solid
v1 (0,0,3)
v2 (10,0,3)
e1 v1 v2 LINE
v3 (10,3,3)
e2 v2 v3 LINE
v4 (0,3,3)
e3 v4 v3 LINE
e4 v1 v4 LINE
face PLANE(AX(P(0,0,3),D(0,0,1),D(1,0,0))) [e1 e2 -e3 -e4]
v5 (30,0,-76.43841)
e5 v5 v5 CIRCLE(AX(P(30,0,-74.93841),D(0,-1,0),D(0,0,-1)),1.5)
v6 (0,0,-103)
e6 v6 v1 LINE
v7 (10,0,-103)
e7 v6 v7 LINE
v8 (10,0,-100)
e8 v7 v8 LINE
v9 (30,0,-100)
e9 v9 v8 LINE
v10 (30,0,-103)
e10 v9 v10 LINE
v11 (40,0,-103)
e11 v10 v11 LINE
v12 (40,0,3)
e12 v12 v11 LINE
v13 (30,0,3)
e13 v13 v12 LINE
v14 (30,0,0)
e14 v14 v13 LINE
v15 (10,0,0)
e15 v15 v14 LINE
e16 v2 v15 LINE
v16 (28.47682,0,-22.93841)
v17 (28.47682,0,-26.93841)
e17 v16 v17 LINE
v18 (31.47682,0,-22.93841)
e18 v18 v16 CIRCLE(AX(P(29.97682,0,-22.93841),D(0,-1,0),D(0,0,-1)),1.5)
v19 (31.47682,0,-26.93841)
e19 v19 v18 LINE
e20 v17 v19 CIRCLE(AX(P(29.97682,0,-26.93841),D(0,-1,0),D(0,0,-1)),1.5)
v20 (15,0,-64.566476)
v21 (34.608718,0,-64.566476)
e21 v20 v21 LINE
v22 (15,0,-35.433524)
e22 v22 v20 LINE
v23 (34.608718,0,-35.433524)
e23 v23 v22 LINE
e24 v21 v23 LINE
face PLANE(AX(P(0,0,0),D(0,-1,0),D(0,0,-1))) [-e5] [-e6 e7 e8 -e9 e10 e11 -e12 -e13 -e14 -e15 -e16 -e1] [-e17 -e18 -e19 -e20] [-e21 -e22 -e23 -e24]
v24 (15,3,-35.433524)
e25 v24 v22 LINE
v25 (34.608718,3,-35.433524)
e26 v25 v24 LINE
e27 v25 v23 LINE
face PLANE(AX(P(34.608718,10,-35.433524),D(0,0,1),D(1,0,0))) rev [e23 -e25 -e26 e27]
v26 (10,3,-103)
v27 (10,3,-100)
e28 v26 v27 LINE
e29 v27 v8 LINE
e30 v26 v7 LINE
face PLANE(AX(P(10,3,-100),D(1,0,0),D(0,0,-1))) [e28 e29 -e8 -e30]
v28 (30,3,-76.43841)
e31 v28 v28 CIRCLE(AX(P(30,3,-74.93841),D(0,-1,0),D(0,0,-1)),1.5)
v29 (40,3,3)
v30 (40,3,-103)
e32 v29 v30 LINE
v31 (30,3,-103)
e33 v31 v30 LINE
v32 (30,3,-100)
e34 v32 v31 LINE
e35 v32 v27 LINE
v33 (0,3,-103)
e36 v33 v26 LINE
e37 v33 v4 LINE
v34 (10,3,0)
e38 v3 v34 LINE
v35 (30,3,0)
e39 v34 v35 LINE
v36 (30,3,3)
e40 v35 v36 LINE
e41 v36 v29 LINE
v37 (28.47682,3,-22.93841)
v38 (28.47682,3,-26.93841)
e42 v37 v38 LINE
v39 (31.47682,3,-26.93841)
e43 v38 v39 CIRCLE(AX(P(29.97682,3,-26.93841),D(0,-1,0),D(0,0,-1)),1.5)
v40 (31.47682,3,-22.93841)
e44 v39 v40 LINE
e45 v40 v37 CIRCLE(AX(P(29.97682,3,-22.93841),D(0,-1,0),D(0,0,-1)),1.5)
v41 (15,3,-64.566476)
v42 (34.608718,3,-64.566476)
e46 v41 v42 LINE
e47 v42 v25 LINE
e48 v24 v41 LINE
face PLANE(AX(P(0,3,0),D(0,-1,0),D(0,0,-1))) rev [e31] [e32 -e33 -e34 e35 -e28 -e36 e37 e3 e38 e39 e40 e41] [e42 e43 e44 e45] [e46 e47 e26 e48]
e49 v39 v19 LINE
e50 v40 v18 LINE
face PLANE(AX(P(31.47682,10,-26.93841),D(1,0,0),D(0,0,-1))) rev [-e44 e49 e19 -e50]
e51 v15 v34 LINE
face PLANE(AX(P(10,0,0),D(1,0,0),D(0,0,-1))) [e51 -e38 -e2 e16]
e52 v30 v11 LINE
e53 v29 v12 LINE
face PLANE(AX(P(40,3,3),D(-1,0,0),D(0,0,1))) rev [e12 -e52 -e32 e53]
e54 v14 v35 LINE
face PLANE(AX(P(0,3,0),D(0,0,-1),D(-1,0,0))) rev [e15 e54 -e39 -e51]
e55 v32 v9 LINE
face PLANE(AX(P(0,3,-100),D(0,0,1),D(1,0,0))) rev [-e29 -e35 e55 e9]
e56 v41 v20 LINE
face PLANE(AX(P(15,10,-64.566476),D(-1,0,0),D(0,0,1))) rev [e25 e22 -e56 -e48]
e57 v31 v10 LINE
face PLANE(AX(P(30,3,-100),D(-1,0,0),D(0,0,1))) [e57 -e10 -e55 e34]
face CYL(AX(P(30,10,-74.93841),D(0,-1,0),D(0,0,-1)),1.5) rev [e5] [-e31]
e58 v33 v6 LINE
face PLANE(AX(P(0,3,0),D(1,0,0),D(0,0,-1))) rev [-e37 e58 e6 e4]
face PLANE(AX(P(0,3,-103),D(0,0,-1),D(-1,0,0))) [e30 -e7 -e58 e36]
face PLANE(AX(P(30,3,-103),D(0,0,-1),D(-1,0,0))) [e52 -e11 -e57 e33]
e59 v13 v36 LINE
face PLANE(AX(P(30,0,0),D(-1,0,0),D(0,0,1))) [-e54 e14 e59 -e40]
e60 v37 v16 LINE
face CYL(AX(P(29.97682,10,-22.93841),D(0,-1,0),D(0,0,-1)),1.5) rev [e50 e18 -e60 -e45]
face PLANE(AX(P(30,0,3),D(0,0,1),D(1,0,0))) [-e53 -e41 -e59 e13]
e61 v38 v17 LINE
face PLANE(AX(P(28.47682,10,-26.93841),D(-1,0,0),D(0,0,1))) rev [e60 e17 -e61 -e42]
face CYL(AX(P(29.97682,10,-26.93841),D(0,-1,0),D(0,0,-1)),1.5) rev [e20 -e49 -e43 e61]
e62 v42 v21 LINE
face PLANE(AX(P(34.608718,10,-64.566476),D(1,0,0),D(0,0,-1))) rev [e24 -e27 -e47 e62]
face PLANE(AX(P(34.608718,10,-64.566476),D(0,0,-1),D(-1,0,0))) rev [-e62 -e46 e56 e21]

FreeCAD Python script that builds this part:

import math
import FreeCAD as App
import Part
import Sketcher

doc = App.newDocument("Part")
body = doc.addObject("PartDesign::Body", "Body")

sketch1 = body.newObject("Sketcher::SketchObject", "Sketch")
sketch1.AttachmentSupport = (doc.getObject("XZ_Plane"), [""])
sketch1.MapMode = "FlatFace"
sketch1.addGeometry(Part.LineSegment(App.Vector(0, -100, 0), App.Vector(0, 0, 0)), False)
sketch1.addGeometry(Part.LineSegment(App.Vector(0, 0, 0), App.Vector(120, 0, 0)), False)
sketch1.addGeometry(Part.LineSegment(App.Vector(120, 0, 0), App.Vector(120, -100, 0)), False)
sketch1.addGeometry(Part.LineSegment(App.Vector(120, -100, 0), App.Vector(0, -100, 0)), False)
sketch1.addConstraint(Sketcher.Constraint("Coincident", 0, 2, 1, 1))
sketch1.addConstraint(Sketcher.Constraint("Coincident", 1, 2, 2, 1))
sketch1.addConstraint(Sketcher.Constraint("Coincident", 2, 2, 3, 1))
sketch1.addConstraint(Sketcher.Constraint("Coincident", 3, 2, 0, 1))
sketch1.addConstraint(Sketcher.Constraint("Vertical", 0))
sketch1.addConstraint(Sketcher.Constraint("Horizontal", 1))
sketch1.addConstraint(Sketcher.Constraint("Vertical", 2))
sketch1.addConstraint(Sketcher.Constraint("Horizontal", 3))
sketch1.addConstraint(Sketcher.Constraint("Coincident", 0, 2, -1, 1))
sketch1.addConstraint(Sketcher.Constraint("DistanceX", 1, 1, 1, 2, 120.0))
sketch1.addConstraint(Sketcher.Constraint("DistanceY", 0, 1, 0, 2, 100.0))
pad1 = body.newObject("PartDesign::Pad", "Pad")
pad1.Profile = sketch1
pad1.Length = 3
pad1.Reversed = True

sketch2 = body.newObject("Sketcher::SketchObject", "Sketch001")
sketch2.AttachmentSupport = (doc.getObject("XZ_Plane"), [""])
sketch2.MapMode = "FlatFace"
sketch2.AttachmentOffset = App.Placement(App.Vector(0, 0, -3), App.Rotation())
sketch2.addGeometry(Part.LineSegment(App.Vector(0, 0, 0), App.Vector(0, 3, 0)), False)
sketch2.addGeometry(Part.LineSegment(App.Vector(0, 3, 0), App.Vector(10, 3, 0)), False)
sketch2.addGeometry(Part.LineSegment(App.Vector(10, 3, 0), App.Vector(10, 0, 0)), False)
sketch2.addGeometry(Part.LineSegment(App.Vector(10, 0, 0), App.Vector(0, 0, 0)), False)
sketch2.addGeometry(Part.LineSegment(App.Vector(30, 0, 0), App.Vector(30, 3, 0)), False)
sketch2.addGeometry(Part.LineSegment(App.Vector(30, 3, 0), App.Vector(50, 3, 0)), False)
sketch2.addGeometry(Part.LineSegment(App.Vector(50, 3, 0), App.Vector(50, 0, 0)), False)
sketch2.addGeometry(Part.LineSegment(App.Vector(50, 0, 0), App.Vector(30, 0, 0)), False)
sketch2.addGeometry(Part.LineSegment(App.Vector(70, 0, 0), App.Vector(70, 3, 0)), False)
sketch2.addGeometry(Part.LineSegment(App.Vector(70, 3, 0), App.Vector(90, 3, 0)), False)
sketch2.addGeometry(Part.LineSegment(App.Vector(90, 3, 0), App.Vector(90, 0, 0)), False)
sketch2.addGeometry(Part.LineSegment(App.Vector(90, 0, 0), App.Vector(70, 0, 0)), False)
sketch2.addGeometry(Part.LineSegment(App.Vector(110, 0, 0), App.Vector(110, 3, 0)), False)
sketch2.addGeometry(Part.LineSegment(App.Vector(110, 3, 0), App.Vector(120, 3, 0)), False)
sketch2.addGeometry(Part.LineSegment(App.Vector(120, 3, 0), App.Vector(120, 0, 0)), False)
sketch2.addGeometry(Part.LineSegment(App.Vector(120, 0, 0), App.Vector(110, 0, 0)), False)
sketch2.addConstraint(Sketcher.Constraint("Coincident", 0, 2, 1, 1))
sketch2.addConstraint(Sketcher.Constraint("Coincident", 1, 2, 2, 1))
sketch2.addConstraint(Sketcher.Constraint("Coincident", 2, 2, 3, 1))
sketch2.addConstraint(Sketcher.Constraint("Coincident", 3, 2, 0, 1))
sketch2.addConstraint(Sketcher.Constraint("Coincident", 4, 2, 5, 1))
sketch2.addConstraint(Sketcher.Constraint("Coincident", 5, 2, 6, 1))
sketch2.addConstraint(Sketcher.Constraint("Coincident", 6, 2, 7, 1))
sketch2.addConstraint(Sketcher.Constraint("Coincident", 7, 2, 4, 1))
sketch2.addConstraint(Sketcher.Constraint("Coincident", 8, 2, 9, 1))
sketch2.addConstraint(Sketcher.Constraint("Coincident", 9, 2, 10, 1))
sketch2.addConstraint(Sketcher.Constraint("Coincident", 10, 2, 11, 1))
sketch2.addConstraint(Sketcher.Constraint("Coincident", 11, 2, 8, 1))
sketch2.addConstraint(Sketcher.Constraint("Coincident", 12, 2, 13, 1))
sketch2.addConstraint(Sketcher.Constraint("Coincident", 13, 2, 14, 1))
sketch2.addConstraint(Sketcher.Constraint("Coincident", 14, 2, 15, 1))
sketch2.addConstraint(Sketcher.Constraint("Coincident", 15, 2, 12, 1))
sketch2.addConstraint(Sketcher.Constraint("Vertical", 0))
sketch2.addConstraint(Sketcher.Constraint("Horizontal", 1))
sketch2.addConstraint(Sketcher.Constraint("Vertical", 2))
sketch2.addConstraint(Sketcher.Constraint("Horizontal", 3))
sketch2.addConstraint(Sketcher.Constraint("Vertical", 4))
sketch2.addConstraint(Sketcher.Constraint("Horizontal", 5))
sketch2.addConstraint(Sketcher.Constraint("Vertical", 6))
sketch2.addConstraint(Sketcher.Constraint("Horizontal", 7))
sketch2.addConstraint(Sketcher.Constraint("Vertical", 8))
sketch2.addConstraint(Sketcher.Constraint("Horizontal", 9))
sketch2.addConstraint(Sketcher.Constraint("Vertical", 10))
sketch2.addConstraint(Sketcher.Constraint("Horizontal", 11))
sketch2.addConstraint(Sketcher.Constraint("Vertical", 12))
sketch2.addConstraint(Sketcher.Constraint("Horizontal", 13))
sketch2.addConstraint(Sketcher.Constraint("Vertical", 14))
sketch2.addConstraint(Sketcher.Constraint("Horizontal", 15))
sketch2.addConstraint(Sketcher.Constraint("Coincident", 3, 2, -1, 1))
sketch2.addConstraint(Sketcher.Constraint("PointOnObject", 6, 2, -1))
sketch2.addConstraint(Sketcher.Constraint("PointOnObject", 10, 2, -1))
sketch2.addConstraint(Sketcher.Constraint("PointOnObject", 14, 2, -1))
sketch2.addConstraint(Sketcher.Constraint("Horizontal", 1, 2, 4, 2))
sketch2.addConstraint(Sketcher.Constraint("Horizontal", 5, 2, 8, 2))
sketch2.addConstraint(Sketcher.Constraint("Horizontal", 9, 2, 12, 2))
sketch2.addConstraint(Sketcher.Constraint("Equal", 7, 9))
sketch2.addConstraint(Sketcher.Constraint("Equal", 3, 13))
sketch2.addConstraint(Sketcher.Constraint("DistanceX", 1, 1, 1, 2, 10.0))
sketch2.addConstraint(Sketcher.Constraint("DistanceX", 5, 1, 5, 2, 20.0))
sketch2.addConstraint(Sketcher.Constraint("DistanceY", 0, 1, 0, 2, 3.0))
sketch2.addConstraint(Sketcher.Constraint("DistanceX", -1, 1, 4, 2, 30.0))
sketch2.addConstraint(Sketcher.Constraint("DistanceX", -1, 1, 8, 2, 70.0))
sketch2.addConstraint(Sketcher.Constraint("DistanceX", -1, 1, 12, 2, 110.0))
pad2 = body.newObject("PartDesign::Pad", "Pad001")
pad2.Profile = sketch2
pad2.Length = 3

sketch3 = body.newObject("Sketcher::SketchObject", "Sketch002")
sketch3.AttachmentSupport = (doc.getObject("XZ_Plane"), [""])
sketch3.MapMode = "FlatFace"
sketch3.addGeometry(Part.LineSegment(App.Vector(0, -100, 0), App.Vector(0, -103, 0)), False)
sketch3.addGeometry(Part.LineSegment(App.Vector(0, -103, 0), App.Vector(10, -103, 0)), False)
sketch3.addGeometry(Part.LineSegment(App.Vector(10, -103, 0), App.Vector(10, -100, 0)), False)
sketch3.addGeometry(Part.LineSegment(App.Vector(10, -100, 0), App.Vector(0, -100, 0)), False)
sketch3.addGeometry(Part.LineSegment(App.Vector(30, -100, 0), App.Vector(30, -103, 0)), False)
sketch3.addGeometry(Part.LineSegment(App.Vector(30, -103, 0), App.Vector(50, -103, 0)), False)
sketch3.addGeometry(Part.LineSegment(App.Vector(50, -103, 0), App.Vector(50, -100, 0)), False)
sketch3.addGeometry(Part.LineSegment(App.Vector(50, -100, 0), App.Vector(30, -100, 0)), False)
sketch3.addGeometry(Part.LineSegment(App.Vector(70, -100, 0), App.Vector(70, -103, 0)), False)
sketch3.addGeometry(Part.LineSegment(App.Vector(70, -103, 0), App.Vector(90, -103, 0)), False)
sketch3.addGeometry(Part.LineSegment(App.Vector(90, -103, 0), App.Vector(90, -100, 0)), False)
sketch3.addGeometry(Part.LineSegment(App.Vector(90, -100, 0), App.Vector(70, -100, 0)), False)
sketch3.addGeometry(Part.LineSegment(App.Vector(110, -100, 0), App.Vector(110, -103, 0)), False)
sketch3.addGeometry(Part.LineSegment(App.Vector(110, -103, 0), App.Vector(120, -103, 0)), False)
sketch3.addGeometry(Part.LineSegment(App.Vector(120, -103, 0), App.Vector(120, -100, 0)), False)
sketch3.addGeometry(Part.LineSegment(App.Vector(120, -100, 0), App.Vector(110, -100, 0)), False)
sketch3.addConstraint(Sketcher.Constraint("Coincident", 0, 2, 1, 1))
sketch3.addConstraint(Sketcher.Constraint("Coincident", 1, 2, 2, 1))
sketch3.addConstraint(Sketcher.Constraint("Coincident", 2, 2, 3, 1))
sketch3.addConstraint(Sketcher.Constraint("Coincident", 3, 2, 0, 1))
sketch3.addConstraint(Sketcher.Constraint("Coincident", 4, 2, 5, 1))
sketch3.addConstraint(Sketcher.Constraint("Coincident", 5, 2, 6, 1))
sketch3.addConstraint(Sketcher.Constraint("Coincident", 6, 2, 7, 1))
sketch3.addConstraint(Sketcher.Constraint("Coincident", 7, 2, 4, 1))
sketch3.addConstraint(Sketcher.Constraint("Coincident", 8, 2, 9, 1))
sketch3.addConstraint(Sketcher.Constraint("Coincident", 9, 2, 10, 1))
sketch3.addConstraint(Sketcher.Constraint("Coincident", 10, 2, 11, 1))
sketch3.addConstraint(Sketcher.Constraint("Coincident", 11, 2, 8, 1))
sketch3.addConstraint(Sketcher.Constraint("Coincident", 12, 2, 13, 1))
sketch3.addConstraint(Sketcher.Constraint("Coincident", 13, 2, 14, 1))
sketch3.addConstraint(Sketcher.Constraint("Coincident", 14, 2, 15, 1))
sketch3.addConstraint(Sketcher.Constraint("Coincident", 15, 2, 12, 1))
sketch3.addConstraint(Sketcher.Constraint("Vertical", 0))
sketch3.addConstraint(Sketcher.Constraint("Horizontal", 1))
sketch3.addConstraint(Sketcher.Constraint("Vertical", 2))
sketch3.addConstraint(Sketcher.Constraint("Horizontal", 3))
sketch3.addConstraint(Sketcher.Constraint("Vertical", 4))
sketch3.addConstraint(Sketcher.Constraint("Horizontal", 5))
sketch3.addConstraint(Sketcher.Constraint("Vertical", 6))
sketch3.addConstraint(Sketcher.Constraint("Horizontal", 7))
sketch3.addConstraint(Sketcher.Constraint("Vertical", 8))
sketch3.addConstraint(Sketcher.Constraint("Horizontal", 9))
sketch3.addConstraint(Sketcher.Constraint("Vertical", 10))
sketch3.addConstraint(Sketcher.Constraint("Horizontal", 11))
sketch3.addConstraint(Sketcher.Constraint("Vertical", 12))
sketch3.addConstraint(Sketcher.Constraint("Horizontal", 13))
sketch3.addConstraint(Sketcher.Constraint("Vertical", 14))
sketch3.addConstraint(Sketcher.Constraint("Horizontal", 15))
sketch3.addConstraint(Sketcher.Constraint("PointOnObject", 0, 2, -2))
sketch3.addConstraint(Sketcher.Constraint("Horizontal", 1, 2, 4, 2))
sketch3.addConstraint(Sketcher.Constraint("Horizontal", 3, 2, 6, 2))
sketch3.addConstraint(Sketcher.Constraint("Horizontal", 5, 2, 8, 2))
sketch3.addConstraint(Sketcher.Constraint("Horizontal", 7, 2, 10, 2))
sketch3.addConstraint(Sketcher.Constraint("Horizontal", 9, 2, 12, 2))
sketch3.addConstraint(Sketcher.Constraint("Horizontal", 11, 2, 14, 2))
sketch3.addConstraint(Sketcher.Constraint("Equal", 7, 9))
sketch3.addConstraint(Sketcher.Constraint("Equal", 3, 13))
sketch3.addConstraint(Sketcher.Constraint("DistanceX", 1, 1, 1, 2, 10.0))
sketch3.addConstraint(Sketcher.Constraint("DistanceX", 5, 1, 5, 2, 20.0))
sketch3.addConstraint(Sketcher.Constraint("DistanceY", 0, 2, 0, 1, 3.0))
sketch3.addConstraint(Sketcher.Constraint("DistanceY", 0, 2, -1, 1, 103.0))
sketch3.addConstraint(Sketcher.Constraint("DistanceX", -1, 1, 4, 2, 30.0))
sketch3.addConstraint(Sketcher.Constraint("DistanceX", -1, 1, 8, 2, 70.0))
sketch3.addConstraint(Sketcher.Constraint("DistanceX", -1, 1, 12, 2, 110.0))
pad3 = body.newObject("PartDesign::Pad", "Pad002")
pad3.Profile = sketch3
pad3.Length = 3
pad3.Reversed = True

sketch4 = body.newObject("Sketcher::SketchObject", "Sketch003")
sketch4.AttachmentSupport = (doc.getObject("XZ_Plane"), [""])
sketch4.MapMode = "FlatFace"
sketch4.addGeometry(Part.LineSegment(App.Vector(40, 3, 0), App.Vector(40, -103, 0)), False)
sketch4.addGeometry(Part.LineSegment(App.Vector(40, -103, 0), App.Vector(120, -103, 0)), False)
sketch4.addGeometry(Part.LineSegment(App.Vector(120, -103, 0), App.Vector(120, 3, 0)), False)
sketch4.addGeometry(Part.LineSegment(App.Vector(120, 3, 0), App.Vector(40, 3, 0)), False)
sketch4.addConstraint(Sketcher.Constraint("Coincident", 0, 2, 1, 1))
sketch4.addConstraint(Sketcher.Constraint("Coincident", 1, 2, 2, 1))
sketch4.addConstraint(Sketcher.Constraint("Coincident", 2, 2, 3, 1))
sketch4.addConstraint(Sketcher.Constraint("Coincident", 3, 2, 0, 1))
sketch4.addConstraint(Sketcher.Constraint("Vertical", 0))
sketch4.addConstraint(Sketcher.Constraint("Horizontal", 1))
sketch4.addConstraint(Sketcher.Constraint("Vertical", 2))
sketch4.addConstraint(Sketcher.Constraint("Horizontal", 3))
sketch4.addConstraint(Sketcher.Constraint("DistanceX", 1, 1, 1, 2, 80.0))
sketch4.addConstraint(Sketcher.Constraint("DistanceY", 0, 2, 0, 1, 106.0))
sketch4.addConstraint(Sketcher.Constraint("DistanceX", -1, 1, 0, 2, 40.0))
sketch4.addConstraint(Sketcher.Constraint("DistanceY", 0, 2, -1, 1, 103.0))
pocket1 = body.newObject("PartDesign::Pocket", "Pocket")
pocket1.Profile = sketch4
pocket1.Length = 3

sketch5 = body.newObject("Sketcher::SketchObject", "Sketch004")
sketch5.AttachmentSupport = (doc.getObject("XZ_Plane"), [""])
sketch5.MapMode = "FlatFace"
sketch5.addGeometry(Part.Circle(App.Vector(30, -74.9, 0), App.Vector(0, 0, 1), 1.5), False)
sketch5.addGeometry(Part.LineSegment(App.Vector(31.5, -26.9, 0), App.Vector(31.5, -22.9, 0)), False)
sketch5.addGeometry(Part.ArcOfCircle(Part.Circle(App.Vector(30, -22.9, 0), App.Vector(0, 0, 1), 1.5), math.radians(0), math.radians(180)), False)
sketch5.addGeometry(Part.LineSegment(App.Vector(28.5, -22.9, 0), App.Vector(28.5, -26.9, 0)), False)
sketch5.addGeometry(Part.ArcOfCircle(Part.Circle(App.Vector(30, -26.9, 0), App.Vector(0, 0, 1), 1.5), math.radians(180), math.radians(360)), False)
sketch5.addConstraint(Sketcher.Constraint("Tangent", 1, 2, 2, 1))
sketch5.addConstraint(Sketcher.Constraint("Tangent", 2, 2, 3, 1))
sketch5.addConstraint(Sketcher.Constraint("Tangent", 3, 2, 4, 1))
sketch5.addConstraint(Sketcher.Constraint("Tangent", 4, 2, 1, 1))
sketch5.addConstraint(Sketcher.Constraint("Vertical", 1))
sketch5.addConstraint(Sketcher.Constraint("Vertical", 3))
sketch5.addConstraint(Sketcher.Constraint("Equal", 0, 2))
sketch5.addConstraint(Sketcher.Constraint("Diameter", 0, 3.0))
sketch5.addConstraint(Sketcher.Constraint("DistanceY", 1, 1, 1, 2, 4.0))
sketch5.addConstraint(Sketcher.Constraint("DistanceX", -1, 1, 0, 3, 30.0))
sketch5.addConstraint(Sketcher.Constraint("DistanceY", 0, 3, 2, 3, 52.0))
sketch5.addConstraint(Sketcher.Constraint("DistanceY", 0, 3, -1, 1, 74.93841))
sketch5.addConstraint(Sketcher.Constraint("DistanceX", -1, 1, 2, 3, 29.97682))
pocket2 = body.newObject("PartDesign::Pocket", "Pocket001")
pocket2.Profile = sketch5
pocket2.Length = 10

sketch6 = body.newObject("Sketcher::SketchObject", "Sketch005")
sketch6.AttachmentSupport = (doc.getObject("XZ_Plane"), [""])
sketch6.MapMode = "FlatFace"
sketch6.addGeometry(Part.LineSegment(App.Vector(15, -35, 0), App.Vector(15, -65, 0)), False)
sketch6.addGeometry(Part.LineSegment(App.Vector(15, -65, 0), App.Vector(35, -65, 0)), False)
sketch6.addGeometry(Part.LineSegment(App.Vector(35, -65, 0), App.Vector(35, -35, 0)), False)
sketch6.addGeometry(Part.LineSegment(App.Vector(35, -35, 0), App.Vector(15, -35, 0)), False)
sketch6.addConstraint(Sketcher.Constraint("Coincident", 0, 2, 1, 1))
sketch6.addConstraint(Sketcher.Constraint("Coincident", 1, 2, 2, 1))
sketch6.addConstraint(Sketcher.Constraint("Coincident", 2, 2, 3, 1))
sketch6.addConstraint(Sketcher.Constraint("Coincident", 3, 2, 0, 1))
sketch6.addConstraint(Sketcher.Constraint("Vertical", 0))
sketch6.addConstraint(Sketcher.Constraint("Horizontal", 1))
sketch6.addConstraint(Sketcher.Constraint("Vertical", 2))
sketch6.addConstraint(Sketcher.Constraint("Horizontal", 3))
sketch6.addConstraint(Sketcher.Constraint("DistanceX", -1, 1, 0, 2, 15.0))
sketch6.addConstraint(Sketcher.Constraint("DistanceY", 0, 2, 0, 1, 29.132952))
sketch6.addConstraint(Sketcher.Constraint("DistanceX", 1, 1, 1, 2, 19.608718))
sketch6.addConstraint(Sketcher.Constraint("DistanceY", 0, 2, -1, 1, 64.566476))
pocket3 = body.newObject("PartDesign::Pocket", "Pocket002")
pocket3.Profile = sketch6
pocket3.Length = 10

doc.recompute()
